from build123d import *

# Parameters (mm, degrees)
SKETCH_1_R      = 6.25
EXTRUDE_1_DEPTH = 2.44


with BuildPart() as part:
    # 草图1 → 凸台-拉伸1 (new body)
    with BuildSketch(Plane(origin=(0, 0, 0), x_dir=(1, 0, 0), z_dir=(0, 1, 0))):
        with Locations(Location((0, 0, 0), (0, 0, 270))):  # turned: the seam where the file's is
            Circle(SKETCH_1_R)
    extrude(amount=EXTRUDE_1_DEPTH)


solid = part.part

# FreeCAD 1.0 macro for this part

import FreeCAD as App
import Part
import Sketcher

V = App.Vector
Q = App.Units.Quantity

doc = App.newDocument("Part")
body = doc.addObject("PartDesign::Body", "Body")

sketch1 = doc.addObject("Sketcher::SketchObject", "Sketch")
body.addObject(sketch1)
sketch1.AttachmentSupport = (doc.XZ_Plane, [""])
sketch1.MapMode = "FlatFace"
sketch1.addGeometry(Part.Circle(V(0, 0, 0), V(0, 0, 1), 6.25), False)
sketch1.addConstraint(Sketcher.Constraint("Coincident", 0, 3, -1, 1))
sketch1.addConstraint(Sketcher.Constraint("Diameter", 0, Q("12.5 mm")))
pad1 = doc.addObject("PartDesign::Pad", "Pad")
body.addObject(pad1)
pad1.Profile = sketch1
pad1.Length = 2.44
pad1.Reversed = True

doc.recompute()
